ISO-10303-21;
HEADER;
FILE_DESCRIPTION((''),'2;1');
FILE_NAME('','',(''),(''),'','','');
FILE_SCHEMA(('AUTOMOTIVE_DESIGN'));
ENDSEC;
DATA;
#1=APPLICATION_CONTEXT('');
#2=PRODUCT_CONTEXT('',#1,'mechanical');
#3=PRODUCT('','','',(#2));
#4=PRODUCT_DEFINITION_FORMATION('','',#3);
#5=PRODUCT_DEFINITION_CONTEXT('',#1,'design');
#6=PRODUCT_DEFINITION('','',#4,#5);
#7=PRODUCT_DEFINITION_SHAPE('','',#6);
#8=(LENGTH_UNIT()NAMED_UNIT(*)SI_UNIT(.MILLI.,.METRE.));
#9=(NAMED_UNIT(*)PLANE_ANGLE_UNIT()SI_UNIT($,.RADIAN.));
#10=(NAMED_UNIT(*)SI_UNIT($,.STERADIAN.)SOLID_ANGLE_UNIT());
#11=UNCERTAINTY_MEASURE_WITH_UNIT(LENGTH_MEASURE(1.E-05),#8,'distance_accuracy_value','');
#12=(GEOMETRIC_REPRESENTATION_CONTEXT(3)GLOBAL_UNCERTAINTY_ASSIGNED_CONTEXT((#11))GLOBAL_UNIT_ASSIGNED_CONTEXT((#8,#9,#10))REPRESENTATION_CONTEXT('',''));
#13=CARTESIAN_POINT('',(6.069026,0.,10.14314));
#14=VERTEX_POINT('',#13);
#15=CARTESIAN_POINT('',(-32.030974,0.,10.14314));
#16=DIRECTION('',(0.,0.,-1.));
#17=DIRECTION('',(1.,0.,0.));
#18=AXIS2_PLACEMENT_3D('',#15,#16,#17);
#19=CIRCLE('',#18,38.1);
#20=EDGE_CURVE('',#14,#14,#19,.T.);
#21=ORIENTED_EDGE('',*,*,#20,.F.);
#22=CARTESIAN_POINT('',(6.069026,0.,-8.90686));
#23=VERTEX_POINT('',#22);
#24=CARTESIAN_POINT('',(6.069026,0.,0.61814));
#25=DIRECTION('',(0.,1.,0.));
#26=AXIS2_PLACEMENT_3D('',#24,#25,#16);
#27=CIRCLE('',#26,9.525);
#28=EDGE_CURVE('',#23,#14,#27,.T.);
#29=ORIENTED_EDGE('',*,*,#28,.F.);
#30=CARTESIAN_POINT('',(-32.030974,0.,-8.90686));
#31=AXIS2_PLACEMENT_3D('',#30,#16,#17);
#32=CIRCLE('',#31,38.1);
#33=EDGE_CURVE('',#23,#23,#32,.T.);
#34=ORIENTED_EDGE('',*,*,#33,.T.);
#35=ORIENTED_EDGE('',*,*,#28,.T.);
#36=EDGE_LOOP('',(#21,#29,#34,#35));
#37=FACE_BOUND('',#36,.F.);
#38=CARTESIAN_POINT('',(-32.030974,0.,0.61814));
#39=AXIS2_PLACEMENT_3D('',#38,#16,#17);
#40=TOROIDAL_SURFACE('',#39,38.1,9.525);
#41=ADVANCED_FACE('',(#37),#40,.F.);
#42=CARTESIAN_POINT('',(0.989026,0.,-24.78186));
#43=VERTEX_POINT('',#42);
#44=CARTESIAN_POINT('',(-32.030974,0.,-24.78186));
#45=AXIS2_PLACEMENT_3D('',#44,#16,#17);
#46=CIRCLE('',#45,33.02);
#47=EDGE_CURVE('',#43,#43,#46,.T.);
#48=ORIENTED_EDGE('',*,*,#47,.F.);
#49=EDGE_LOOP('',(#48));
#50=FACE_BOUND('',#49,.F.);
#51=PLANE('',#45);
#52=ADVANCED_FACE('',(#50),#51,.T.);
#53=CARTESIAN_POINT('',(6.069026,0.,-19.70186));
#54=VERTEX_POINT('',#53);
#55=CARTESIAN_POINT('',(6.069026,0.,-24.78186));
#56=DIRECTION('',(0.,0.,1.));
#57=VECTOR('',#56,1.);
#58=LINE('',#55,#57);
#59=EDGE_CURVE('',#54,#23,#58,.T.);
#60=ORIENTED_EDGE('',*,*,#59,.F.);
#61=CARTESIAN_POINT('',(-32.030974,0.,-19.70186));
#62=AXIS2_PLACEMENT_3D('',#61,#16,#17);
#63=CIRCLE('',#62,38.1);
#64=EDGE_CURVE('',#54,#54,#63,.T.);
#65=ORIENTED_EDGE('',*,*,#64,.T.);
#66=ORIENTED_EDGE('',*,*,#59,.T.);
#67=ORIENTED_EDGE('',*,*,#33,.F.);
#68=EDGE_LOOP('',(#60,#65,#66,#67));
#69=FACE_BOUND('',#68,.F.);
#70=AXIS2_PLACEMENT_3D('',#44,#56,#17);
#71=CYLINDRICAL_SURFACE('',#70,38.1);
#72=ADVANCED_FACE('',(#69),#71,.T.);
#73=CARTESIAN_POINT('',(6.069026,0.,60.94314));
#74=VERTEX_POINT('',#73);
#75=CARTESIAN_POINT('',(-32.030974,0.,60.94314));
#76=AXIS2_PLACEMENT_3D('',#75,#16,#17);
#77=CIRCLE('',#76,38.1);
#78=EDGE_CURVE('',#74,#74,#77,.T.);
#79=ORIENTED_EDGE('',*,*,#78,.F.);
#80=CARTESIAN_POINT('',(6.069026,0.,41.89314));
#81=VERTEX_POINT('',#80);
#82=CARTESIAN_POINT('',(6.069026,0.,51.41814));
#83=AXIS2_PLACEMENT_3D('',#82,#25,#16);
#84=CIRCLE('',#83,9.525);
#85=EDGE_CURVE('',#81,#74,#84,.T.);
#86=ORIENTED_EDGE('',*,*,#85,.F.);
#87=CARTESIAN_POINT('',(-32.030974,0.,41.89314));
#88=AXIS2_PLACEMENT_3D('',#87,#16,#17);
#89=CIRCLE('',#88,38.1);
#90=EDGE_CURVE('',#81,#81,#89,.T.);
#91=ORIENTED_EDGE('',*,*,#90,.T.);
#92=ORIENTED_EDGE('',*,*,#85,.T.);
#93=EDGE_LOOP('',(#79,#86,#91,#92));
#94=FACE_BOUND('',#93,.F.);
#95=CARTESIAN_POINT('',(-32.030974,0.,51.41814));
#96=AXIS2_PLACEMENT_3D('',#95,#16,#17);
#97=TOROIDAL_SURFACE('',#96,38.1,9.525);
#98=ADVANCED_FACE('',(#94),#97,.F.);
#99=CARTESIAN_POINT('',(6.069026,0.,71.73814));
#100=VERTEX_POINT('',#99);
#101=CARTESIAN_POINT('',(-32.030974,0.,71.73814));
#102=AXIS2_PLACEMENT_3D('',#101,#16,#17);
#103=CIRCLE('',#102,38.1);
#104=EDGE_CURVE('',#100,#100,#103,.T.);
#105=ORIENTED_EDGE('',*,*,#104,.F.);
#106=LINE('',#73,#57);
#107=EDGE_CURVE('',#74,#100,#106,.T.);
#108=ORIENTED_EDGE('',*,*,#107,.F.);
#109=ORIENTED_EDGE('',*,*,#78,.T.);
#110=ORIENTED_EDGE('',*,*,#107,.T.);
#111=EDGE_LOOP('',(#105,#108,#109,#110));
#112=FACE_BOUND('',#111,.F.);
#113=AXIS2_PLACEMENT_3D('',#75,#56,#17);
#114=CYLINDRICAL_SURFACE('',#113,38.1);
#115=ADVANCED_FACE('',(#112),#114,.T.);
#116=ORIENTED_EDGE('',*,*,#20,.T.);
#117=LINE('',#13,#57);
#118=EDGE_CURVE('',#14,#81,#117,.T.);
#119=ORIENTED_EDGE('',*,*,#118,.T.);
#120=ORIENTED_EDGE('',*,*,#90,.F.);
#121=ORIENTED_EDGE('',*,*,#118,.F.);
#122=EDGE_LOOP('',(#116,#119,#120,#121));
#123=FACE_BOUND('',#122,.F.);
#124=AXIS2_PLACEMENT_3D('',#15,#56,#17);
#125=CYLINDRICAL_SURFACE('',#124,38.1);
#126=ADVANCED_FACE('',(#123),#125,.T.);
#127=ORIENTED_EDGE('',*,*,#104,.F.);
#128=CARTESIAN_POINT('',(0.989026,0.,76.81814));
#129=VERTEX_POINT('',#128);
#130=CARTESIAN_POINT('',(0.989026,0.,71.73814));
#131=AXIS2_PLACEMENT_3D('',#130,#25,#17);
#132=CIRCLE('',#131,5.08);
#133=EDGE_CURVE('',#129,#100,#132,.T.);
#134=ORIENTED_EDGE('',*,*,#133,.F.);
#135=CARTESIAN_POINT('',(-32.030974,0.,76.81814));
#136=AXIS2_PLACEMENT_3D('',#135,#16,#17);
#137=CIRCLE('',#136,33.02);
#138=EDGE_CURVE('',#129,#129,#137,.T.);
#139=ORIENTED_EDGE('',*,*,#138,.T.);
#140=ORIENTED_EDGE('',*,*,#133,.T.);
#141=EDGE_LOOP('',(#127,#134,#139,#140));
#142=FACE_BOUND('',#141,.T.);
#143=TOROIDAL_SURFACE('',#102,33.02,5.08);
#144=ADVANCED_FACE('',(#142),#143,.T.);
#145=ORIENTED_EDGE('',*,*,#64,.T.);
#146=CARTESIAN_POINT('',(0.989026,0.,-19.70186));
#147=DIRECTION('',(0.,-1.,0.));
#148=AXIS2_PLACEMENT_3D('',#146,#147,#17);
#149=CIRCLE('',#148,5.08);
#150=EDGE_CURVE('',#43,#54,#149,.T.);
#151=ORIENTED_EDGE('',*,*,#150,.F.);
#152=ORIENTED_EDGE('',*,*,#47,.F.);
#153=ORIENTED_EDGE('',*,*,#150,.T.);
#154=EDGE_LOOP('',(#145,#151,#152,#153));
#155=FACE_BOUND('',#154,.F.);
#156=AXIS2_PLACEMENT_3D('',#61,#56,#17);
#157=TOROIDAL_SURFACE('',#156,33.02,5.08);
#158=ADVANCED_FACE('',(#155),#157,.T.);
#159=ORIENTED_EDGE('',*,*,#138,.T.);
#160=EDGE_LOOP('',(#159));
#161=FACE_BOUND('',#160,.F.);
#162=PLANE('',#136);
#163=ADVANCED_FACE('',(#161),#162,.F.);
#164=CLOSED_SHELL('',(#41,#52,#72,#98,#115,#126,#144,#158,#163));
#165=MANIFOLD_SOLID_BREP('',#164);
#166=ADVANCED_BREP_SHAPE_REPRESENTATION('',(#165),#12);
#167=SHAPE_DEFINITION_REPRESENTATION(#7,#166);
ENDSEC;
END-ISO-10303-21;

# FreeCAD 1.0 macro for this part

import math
import FreeCAD as App
import Part
import Sketcher

V = App.Vector
Q = App.Units.Quantity


def edges_at(feature, points):
    """Names of the edges that pass closest to the given points."""
    edges = feature.Shape.Edges
    near = lambda p: min(range(len(edges)), key=lambda i: edges[i].distToShape(Part.Vertex(*p))[0])
    return sorted({f"Edge{near(p) + 1}" for p in points})

doc = App.newDocument("Part")
params = doc.addObject("Spreadsheet::Sheet", "Params")
for row, (alias, value) in enumerate([
    ("sketch1_height", "4 in"),
    ("sketch1_width", "1.5 in"),
    ("sketch1_radius", "0.375 in"),
    ("revolution_angle", "360 deg"),
    ("fillet_radius", "0.2 in"),
], start=1):
    params.set(f"A{row}", alias)
    params.set(f"B{row}", "=" + value)
    params.setAlias(f"B{row}", alias)

body = doc.addObject("PartDesign::Body", "Body")

sketch1 = body.newObject("Sketcher::SketchObject", "Sketch")
sketch1.AttachmentSupport = (doc.getObject("XZ_Plane"), [""])
sketch1.MapMode = "FlatFace"
sketch1.addGeometry(Part.LineSegment(V(6, 77, 0), V(-32, 77, 0)), False)
sketch1.addGeometry(Part.LineSegment(V(-32, 77, 0), V(-32, -25, 0)), False)
sketch1.addGeometry(Part.LineSegment(V(-32, -25, 0), V(6, -25, 0)), False)
sketch1.addGeometry(Part.LineSegment(V(6, -25, 0), V(6, -9, 0)), False)
sketch1.addGeometry(Part.ArcOfCircle(Part.Circle(V(6, 1, 0), V(0, 0, 1), 10), math.radians(90), math.radians(270)), False)
sketch1.addGeometry(Part.LineSegment(V(6, 10, 0), V(6, 42, 0)), False)
sketch1.addGeometry(Part.ArcOfCircle(Part.Circle(V(6, 51, 0), V(0, 0, 1), 10), math.radians(90), math.radians(270)), False)
sketch1.addGeometry(Part.LineSegment(V(6, 61, 0), V(6, 77, 0)), False)
sketch1.addGeometry(Part.LineSegment(V(-32, 77, 0), V(-32, -25, 0)), True)
sketch1.addConstraint(Sketcher.Constraint("Coincident", 0, 2, 1, 1))
sketch1.addConstraint(Sketcher.Constraint("Coincident", 1, 2, 2, 1))
sketch1.addConstraint(Sketcher.Constraint("Coincident", 2, 2, 3, 1))
sketch1.addConstraint(Sketcher.Constraint("Coincident", 3, 2, 4, 2))
sketch1.addConstraint(Sketcher.Constraint("Coincident", 4, 1, 5, 1))
sketch1.addConstraint(Sketcher.Constraint("Coincident", 5, 2, 6, 2))
sketch1.addConstraint(Sketcher.Constraint("Coincident", 6, 1, 7, 1))
sketch1.addConstraint(Sketcher.Constraint("Coincident", 7, 2, 0, 1))
sketch1.addConstraint(Sketcher.Constraint("Horizontal", 0))
sketch1.addConstraint(Sketcher.Constraint("Vertical", 1))
sketch1.addConstraint(Sketcher.Constraint("Horizontal", 2))
sketch1.addConstraint(Sketcher.Constraint("Vertical", 3))
sketch1.addConstraint(Sketcher.Constraint("Vertical", 5))
sketch1.addConstraint(Sketcher.Constraint("Vertical", 7))
sketch1.addConstraint(Sketcher.Constraint("Vertical", 8))
sketch1.addConstraint(Sketcher.Constraint("Coincident", 8, 1, 0, 2))
sketch1.addConstraint(Sketcher.Constraint("Equal", 4, 6))
sketch1.addConstraint(Sketcher.Constraint("Horizontal", 2, 2, 8, 2))
sketch1.addConstraint(Sketcher.Constraint("Vertical", 4, 3, 6, 3))
sketch1.addConstraint(Sketcher.Constraint("Vertical", 6, 3, 2, 2))
sketch1.addConstraint(Sketcher.Constraint("Vertical", 3, 2, 4, 1))
sketch1.addConstraint(Sketcher.Constraint("Vertical", 5, 2, 6, 1))
sketch1.addConstraint(Sketcher.Constraint("Equal", 3, 7))
sketch1.addConstraint(Sketcher.Constraint("DistanceY", 1, 2, 1, 1, Q("4 in")))
sketch1.addConstraint(Sketcher.Constraint("DistanceX", 0, 2, 0, 1, Q("1.5 in")))
sketch1.addConstraint(Sketcher.Constraint("Radius", 4, Q("0.375 in")))
sketch1.addConstraint(Sketcher.Constraint("DistanceY", 4, 3, 6, 3, Q("2 in")))
sketch1.addConstraint(Sketcher.Constraint("DistanceY", -1, 1, 4, 3, Q("0.61814 mm")))
sketch1.addConstraint(Sketcher.Constraint("DistanceX", -1, 1, 4, 3, Q("6.069026 mm")))
sketch1.setExpression("Constraints[23]", "Params.sketch1_height")
sketch1.setExpression("Constraints[24]", "Params.sketch1_width")
sketch1.setExpression("Constraints[25]", "Params.sketch1_radius")
revolution = body.newObject("PartDesign::Revolution", "Revolution")
revolution.Profile = sketch1
revolution.ReferenceAxis = (sketch1, ["Axis0"])
revolution.setExpression("Angle", "Params.revolution_angle")
doc.recompute()

fillet = body.newObject("PartDesign::Fillet", "Fillet")
fillet.Base = (revolution, edges_at(revolution, [(-70.131, 0, 76.818), (-70.131, 0, -24.782)]))
fillet.setExpression("Radius", "Params.fillet_radius")

doc.recompute()
